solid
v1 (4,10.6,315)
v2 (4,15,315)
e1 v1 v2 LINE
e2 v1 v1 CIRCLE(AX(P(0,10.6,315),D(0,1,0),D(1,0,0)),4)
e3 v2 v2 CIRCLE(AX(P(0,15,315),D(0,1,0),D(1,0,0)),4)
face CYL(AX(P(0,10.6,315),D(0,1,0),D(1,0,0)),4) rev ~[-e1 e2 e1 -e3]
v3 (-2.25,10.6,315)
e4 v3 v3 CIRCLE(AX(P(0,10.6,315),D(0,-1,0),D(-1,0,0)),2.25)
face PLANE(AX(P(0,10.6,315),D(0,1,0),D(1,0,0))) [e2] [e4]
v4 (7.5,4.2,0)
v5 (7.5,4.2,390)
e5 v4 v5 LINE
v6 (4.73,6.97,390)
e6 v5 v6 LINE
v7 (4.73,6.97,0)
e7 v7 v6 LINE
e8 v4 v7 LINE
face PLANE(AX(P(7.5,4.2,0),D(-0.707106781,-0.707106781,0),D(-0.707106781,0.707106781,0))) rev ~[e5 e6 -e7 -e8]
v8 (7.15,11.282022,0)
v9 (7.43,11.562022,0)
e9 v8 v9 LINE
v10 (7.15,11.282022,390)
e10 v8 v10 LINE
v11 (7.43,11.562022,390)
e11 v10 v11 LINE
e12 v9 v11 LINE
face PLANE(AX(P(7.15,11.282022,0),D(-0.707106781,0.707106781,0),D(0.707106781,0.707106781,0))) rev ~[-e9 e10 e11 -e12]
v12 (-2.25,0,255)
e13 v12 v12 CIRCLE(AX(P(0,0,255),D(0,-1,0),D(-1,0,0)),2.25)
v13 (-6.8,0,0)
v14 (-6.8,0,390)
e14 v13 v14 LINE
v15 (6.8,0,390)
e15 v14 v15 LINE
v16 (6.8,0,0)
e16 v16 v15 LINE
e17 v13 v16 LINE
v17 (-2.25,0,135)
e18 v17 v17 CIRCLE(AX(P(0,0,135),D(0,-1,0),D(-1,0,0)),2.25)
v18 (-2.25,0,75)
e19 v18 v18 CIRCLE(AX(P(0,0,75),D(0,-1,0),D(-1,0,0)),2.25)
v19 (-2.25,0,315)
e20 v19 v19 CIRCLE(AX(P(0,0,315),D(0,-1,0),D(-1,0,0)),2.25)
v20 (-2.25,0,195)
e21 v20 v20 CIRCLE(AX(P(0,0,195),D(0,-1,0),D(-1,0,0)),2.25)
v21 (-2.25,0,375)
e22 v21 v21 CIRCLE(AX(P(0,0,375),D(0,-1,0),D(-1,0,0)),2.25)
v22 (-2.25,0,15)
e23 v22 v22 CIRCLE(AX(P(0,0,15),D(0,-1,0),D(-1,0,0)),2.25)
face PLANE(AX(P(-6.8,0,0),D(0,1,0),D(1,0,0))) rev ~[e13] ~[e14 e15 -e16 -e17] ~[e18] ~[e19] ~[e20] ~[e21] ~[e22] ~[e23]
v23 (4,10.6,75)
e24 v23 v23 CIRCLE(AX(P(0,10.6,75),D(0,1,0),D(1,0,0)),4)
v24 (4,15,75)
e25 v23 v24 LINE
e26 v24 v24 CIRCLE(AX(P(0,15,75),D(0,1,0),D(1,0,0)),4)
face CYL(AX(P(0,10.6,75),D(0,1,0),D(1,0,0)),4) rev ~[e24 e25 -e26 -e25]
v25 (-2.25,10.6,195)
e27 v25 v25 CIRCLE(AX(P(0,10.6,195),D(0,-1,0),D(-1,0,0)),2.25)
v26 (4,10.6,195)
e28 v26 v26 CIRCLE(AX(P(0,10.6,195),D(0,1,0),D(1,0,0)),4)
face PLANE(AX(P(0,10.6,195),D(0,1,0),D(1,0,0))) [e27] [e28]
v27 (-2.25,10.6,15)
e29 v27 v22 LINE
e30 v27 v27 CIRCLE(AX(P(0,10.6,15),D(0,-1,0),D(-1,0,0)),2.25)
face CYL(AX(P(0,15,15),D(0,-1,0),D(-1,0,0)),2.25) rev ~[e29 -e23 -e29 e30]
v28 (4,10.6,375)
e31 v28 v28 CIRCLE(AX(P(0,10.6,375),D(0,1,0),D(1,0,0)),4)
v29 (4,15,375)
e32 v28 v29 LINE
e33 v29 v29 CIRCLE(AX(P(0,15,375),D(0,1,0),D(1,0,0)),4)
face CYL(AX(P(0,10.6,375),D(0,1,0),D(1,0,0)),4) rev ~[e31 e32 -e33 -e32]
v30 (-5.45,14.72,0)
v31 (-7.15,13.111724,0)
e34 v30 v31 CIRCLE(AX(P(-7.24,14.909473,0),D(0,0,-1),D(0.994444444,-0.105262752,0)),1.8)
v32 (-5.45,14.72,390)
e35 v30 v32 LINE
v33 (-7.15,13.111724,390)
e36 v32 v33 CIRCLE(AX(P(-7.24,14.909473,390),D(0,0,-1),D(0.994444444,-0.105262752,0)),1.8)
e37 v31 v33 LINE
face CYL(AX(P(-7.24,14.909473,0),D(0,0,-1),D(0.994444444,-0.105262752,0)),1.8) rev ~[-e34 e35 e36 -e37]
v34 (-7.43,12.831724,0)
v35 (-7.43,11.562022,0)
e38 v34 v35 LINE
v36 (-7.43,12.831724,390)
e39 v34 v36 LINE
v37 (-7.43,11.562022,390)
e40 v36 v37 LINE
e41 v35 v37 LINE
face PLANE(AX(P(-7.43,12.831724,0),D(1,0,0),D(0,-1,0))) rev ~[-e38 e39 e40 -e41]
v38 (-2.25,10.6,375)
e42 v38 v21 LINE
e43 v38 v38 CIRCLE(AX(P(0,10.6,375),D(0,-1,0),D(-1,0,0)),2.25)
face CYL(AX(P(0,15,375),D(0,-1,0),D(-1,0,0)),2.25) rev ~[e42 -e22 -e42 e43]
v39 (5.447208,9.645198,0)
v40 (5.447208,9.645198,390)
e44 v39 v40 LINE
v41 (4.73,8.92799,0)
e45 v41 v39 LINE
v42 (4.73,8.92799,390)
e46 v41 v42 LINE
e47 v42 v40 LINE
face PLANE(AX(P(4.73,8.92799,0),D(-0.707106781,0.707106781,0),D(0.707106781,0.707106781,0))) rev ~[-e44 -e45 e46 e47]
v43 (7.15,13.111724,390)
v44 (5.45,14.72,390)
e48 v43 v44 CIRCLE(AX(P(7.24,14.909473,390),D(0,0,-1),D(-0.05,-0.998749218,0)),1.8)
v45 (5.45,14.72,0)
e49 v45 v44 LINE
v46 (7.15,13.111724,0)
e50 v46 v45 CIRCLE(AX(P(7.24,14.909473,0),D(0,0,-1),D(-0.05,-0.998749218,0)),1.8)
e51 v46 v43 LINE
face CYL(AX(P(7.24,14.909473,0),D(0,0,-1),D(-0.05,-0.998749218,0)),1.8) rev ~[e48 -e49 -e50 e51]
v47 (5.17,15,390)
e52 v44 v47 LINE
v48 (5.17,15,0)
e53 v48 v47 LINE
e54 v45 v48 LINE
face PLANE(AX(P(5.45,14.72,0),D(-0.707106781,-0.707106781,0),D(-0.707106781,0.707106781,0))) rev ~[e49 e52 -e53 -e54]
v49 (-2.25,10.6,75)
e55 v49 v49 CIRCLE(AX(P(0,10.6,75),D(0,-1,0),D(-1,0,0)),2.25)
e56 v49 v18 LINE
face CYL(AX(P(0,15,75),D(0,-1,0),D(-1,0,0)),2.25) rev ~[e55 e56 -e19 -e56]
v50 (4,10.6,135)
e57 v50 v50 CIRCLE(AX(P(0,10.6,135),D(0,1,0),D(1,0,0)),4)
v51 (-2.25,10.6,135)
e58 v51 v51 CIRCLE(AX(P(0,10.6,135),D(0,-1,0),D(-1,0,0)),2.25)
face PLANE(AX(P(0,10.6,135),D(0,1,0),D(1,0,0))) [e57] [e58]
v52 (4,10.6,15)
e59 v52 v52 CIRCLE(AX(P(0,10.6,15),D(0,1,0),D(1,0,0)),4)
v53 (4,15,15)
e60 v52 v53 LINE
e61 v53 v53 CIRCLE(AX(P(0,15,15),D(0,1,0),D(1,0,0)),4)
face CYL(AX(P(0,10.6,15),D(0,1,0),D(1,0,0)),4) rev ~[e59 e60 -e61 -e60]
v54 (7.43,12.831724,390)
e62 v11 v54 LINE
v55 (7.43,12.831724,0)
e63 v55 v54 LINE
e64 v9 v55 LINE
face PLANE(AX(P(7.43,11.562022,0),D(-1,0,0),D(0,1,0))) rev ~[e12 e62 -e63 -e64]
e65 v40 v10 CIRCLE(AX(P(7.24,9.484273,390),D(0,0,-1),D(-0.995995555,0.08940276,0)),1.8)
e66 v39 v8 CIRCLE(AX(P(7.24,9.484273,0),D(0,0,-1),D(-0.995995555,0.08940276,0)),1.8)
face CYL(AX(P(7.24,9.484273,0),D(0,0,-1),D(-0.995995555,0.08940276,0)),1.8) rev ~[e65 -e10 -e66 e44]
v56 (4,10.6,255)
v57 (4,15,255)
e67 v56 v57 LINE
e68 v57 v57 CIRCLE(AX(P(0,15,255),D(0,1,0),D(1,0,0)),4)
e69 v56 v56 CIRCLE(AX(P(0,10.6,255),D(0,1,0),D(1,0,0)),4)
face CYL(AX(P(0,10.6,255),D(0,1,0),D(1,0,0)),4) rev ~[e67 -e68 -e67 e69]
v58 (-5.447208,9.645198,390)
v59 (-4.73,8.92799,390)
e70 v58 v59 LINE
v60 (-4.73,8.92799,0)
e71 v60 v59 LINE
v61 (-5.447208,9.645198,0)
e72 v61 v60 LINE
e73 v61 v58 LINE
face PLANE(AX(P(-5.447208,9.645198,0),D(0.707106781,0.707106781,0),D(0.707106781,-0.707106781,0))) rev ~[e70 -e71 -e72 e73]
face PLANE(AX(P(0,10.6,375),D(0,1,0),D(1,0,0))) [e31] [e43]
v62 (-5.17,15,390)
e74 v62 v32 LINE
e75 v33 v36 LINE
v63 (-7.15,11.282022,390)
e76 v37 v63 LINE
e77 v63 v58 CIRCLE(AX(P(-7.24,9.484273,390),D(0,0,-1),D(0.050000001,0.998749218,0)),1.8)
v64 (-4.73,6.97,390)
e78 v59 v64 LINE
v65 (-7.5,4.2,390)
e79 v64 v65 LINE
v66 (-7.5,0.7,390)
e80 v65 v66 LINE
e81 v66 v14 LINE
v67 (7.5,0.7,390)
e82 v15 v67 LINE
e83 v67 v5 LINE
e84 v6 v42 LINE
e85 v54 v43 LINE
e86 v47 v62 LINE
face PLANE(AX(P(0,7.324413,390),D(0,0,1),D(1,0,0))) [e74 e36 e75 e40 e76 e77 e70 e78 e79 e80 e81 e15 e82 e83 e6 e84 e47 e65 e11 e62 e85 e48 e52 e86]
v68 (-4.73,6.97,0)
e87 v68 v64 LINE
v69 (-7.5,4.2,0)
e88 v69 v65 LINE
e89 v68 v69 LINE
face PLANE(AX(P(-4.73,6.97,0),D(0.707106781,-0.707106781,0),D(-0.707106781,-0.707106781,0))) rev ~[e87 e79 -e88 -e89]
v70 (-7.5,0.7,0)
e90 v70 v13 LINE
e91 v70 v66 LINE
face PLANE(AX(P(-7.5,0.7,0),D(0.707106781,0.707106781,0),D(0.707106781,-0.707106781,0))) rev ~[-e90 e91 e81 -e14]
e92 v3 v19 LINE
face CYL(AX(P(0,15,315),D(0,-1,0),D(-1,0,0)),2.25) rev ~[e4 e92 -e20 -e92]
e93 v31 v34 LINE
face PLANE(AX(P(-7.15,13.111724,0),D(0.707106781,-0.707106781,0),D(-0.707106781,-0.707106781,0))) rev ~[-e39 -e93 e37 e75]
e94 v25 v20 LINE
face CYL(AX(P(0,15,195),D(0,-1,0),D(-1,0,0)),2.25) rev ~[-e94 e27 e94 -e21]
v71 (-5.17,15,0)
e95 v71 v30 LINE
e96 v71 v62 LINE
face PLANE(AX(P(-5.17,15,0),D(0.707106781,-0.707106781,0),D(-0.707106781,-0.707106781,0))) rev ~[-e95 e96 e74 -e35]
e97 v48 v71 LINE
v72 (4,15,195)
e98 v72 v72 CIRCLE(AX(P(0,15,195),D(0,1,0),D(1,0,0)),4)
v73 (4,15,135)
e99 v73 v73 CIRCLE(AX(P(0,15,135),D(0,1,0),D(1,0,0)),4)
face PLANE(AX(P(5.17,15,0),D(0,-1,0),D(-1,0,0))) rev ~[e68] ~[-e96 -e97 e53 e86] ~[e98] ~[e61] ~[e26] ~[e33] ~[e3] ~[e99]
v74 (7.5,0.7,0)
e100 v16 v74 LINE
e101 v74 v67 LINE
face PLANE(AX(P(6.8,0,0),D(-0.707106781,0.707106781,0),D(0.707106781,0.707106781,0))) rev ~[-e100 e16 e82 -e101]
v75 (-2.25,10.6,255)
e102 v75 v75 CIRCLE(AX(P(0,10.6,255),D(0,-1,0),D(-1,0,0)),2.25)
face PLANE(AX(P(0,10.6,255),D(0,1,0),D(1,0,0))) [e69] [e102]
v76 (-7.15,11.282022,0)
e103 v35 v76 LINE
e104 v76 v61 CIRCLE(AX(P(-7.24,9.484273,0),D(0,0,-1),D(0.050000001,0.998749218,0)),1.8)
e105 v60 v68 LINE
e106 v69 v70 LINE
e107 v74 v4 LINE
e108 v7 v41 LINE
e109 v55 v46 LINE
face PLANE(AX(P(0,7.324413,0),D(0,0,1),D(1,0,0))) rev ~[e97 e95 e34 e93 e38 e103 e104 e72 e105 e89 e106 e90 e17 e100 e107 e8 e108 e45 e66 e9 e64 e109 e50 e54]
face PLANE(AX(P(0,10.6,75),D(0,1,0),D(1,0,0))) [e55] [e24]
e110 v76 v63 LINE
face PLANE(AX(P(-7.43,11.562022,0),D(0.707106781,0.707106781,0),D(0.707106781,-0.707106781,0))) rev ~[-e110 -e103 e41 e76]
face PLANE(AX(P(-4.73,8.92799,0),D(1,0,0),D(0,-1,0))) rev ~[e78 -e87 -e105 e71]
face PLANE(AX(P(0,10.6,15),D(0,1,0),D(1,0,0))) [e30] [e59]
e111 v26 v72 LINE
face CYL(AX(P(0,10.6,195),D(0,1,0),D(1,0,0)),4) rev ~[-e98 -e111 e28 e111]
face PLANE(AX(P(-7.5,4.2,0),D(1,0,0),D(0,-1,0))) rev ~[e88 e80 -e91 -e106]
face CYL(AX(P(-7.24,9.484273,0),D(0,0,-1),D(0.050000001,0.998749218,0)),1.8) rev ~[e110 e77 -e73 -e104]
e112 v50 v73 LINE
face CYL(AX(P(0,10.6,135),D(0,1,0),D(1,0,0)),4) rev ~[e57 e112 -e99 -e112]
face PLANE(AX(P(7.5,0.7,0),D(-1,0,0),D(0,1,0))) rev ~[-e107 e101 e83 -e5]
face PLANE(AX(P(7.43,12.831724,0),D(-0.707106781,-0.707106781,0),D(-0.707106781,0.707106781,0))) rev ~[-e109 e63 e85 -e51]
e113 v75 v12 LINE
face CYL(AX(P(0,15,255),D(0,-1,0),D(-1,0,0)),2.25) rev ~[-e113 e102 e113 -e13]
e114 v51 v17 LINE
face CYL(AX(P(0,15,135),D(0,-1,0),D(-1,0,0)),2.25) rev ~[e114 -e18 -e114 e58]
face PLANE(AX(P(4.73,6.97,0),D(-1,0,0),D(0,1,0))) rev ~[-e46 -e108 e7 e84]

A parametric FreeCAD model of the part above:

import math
import FreeCAD as App
import Part
import Sketcher

V = App.Vector

doc = App.newDocument("Part")
body = doc.addObject("PartDesign::Body", "Body")

# Sketch on XY plane
sketch1 = body.newObject("Sketcher::SketchObject", "Sketch")
sketch1.AttachmentSupport = (doc.getObject("XY_Plane"), [""])
sketch1.MapMode = "FlatFace"
sketch1.addGeometry([
    Part.LineSegment(V(-5.17, 15, 0), V(-5.45, 14.72, 0)),  # 0
    Part.ArcOfCircle(Part.Circle(V(-7.24, 14.909473, 0), V(0, 0, 1), 1.8), math.radians(-87.134016), math.radians(-6.042305)),  # 1
    Part.LineSegment(V(-7.15, 13.111724, 0), V(-7.43, 12.831724, 0)),  # 2
    Part.LineSegment(V(-7.43, 12.831724, 0), V(-7.43, 11.562022, 0)),  # 3
    Part.LineSegment(V(-7.43, 11.562022, 0), V(-7.15, 11.282022, 0)),  # 4
    Part.ArcOfCircle(Part.Circle(V(-7.24, 9.484273, 0), V(0, 0, 1), 1.8), math.radians(5.129249), math.radians(87.134016)),  # 5
    Part.LineSegment(V(-5.447208, 9.645198, 0), V(-4.73, 8.92799, 0)),  # 6
    Part.LineSegment(V(-4.73, 8.92799, 0), V(-4.73, 6.97, 0)),  # 7
    Part.LineSegment(V(-4.73, 6.97, 0), V(-7.5, 4.2, 0)),  # 8
    Part.LineSegment(V(-7.5, 4.2, 0), V(-7.5, 0.7, 0)),  # 9
    Part.LineSegment(V(-7.5, 0.7, 0), V(-6.8, 0, 0)),  # 10
    Part.LineSegment(V(-6.8, 0, 0), V(6.8, 0, 0)),  # 11
    Part.LineSegment(V(6.8, 0, 0), V(7.5, 0.7, 0)),  # 12
    Part.LineSegment(V(7.5, 0.7, 0), V(7.5, 4.2, 0)),  # 13
    Part.LineSegment(V(7.5, 4.2, 0), V(4.73, 6.97, 0)),  # 14
    Part.LineSegment(V(4.73, 6.97, 0), V(4.73, 8.92799, 0)),  # 15
    Part.LineSegment(V(4.73, 8.92799, 0), V(5.447208, 9.645198, 0)),  # 16
    Part.ArcOfCircle(Part.Circle(V(7.24, 9.484273, 0), V(0, 0, 1), 1.8), math.radians(92.865984), math.radians(174.870751)),  # 17
    Part.LineSegment(V(7.15, 11.282022, 0), V(7.43, 11.562022, 0)),  # 18
    Part.LineSegment(V(7.43, 11.562022, 0), V(7.43, 12.831724, 0)),  # 19
    Part.LineSegment(V(7.43, 12.831724, 0), V(7.15, 13.111724, 0)),  # 20
    Part.ArcOfCircle(Part.Circle(V(7.24, 14.909473, 0), V(0, 0, 1), 1.8), math.radians(-173.957695), math.radians(-92.865984)),  # 21
    Part.LineSegment(V(5.45, 14.72, 0), V(5.17, 15, 0)),  # 22
    Part.LineSegment(V(5.17, 15, 0), V(-5.17, 15, 0)),  # 23
], False)
sketch1.addConstraint([
    Sketcher.Constraint("Coincident", 0, 2, 1, 2),
    Sketcher.Constraint("Coincident", 1, 1, 2, 1),
    Sketcher.Constraint("Coincident", 2, 2, 3, 1),
    Sketcher.Constraint("Coincident", 3, 2, 4, 1),
    Sketcher.Constraint("Coincident", 4, 2, 5, 2),
    Sketcher.Constraint("Coincident", 5, 1, 6, 1),
    Sketcher.Constraint("Coincident", 6, 2, 7, 1),
    Sketcher.Constraint("Coincident", 7, 2, 8, 1),
    Sketcher.Constraint("Coincident", 8, 2, 9, 1),
    Sketcher.Constraint("Coincident", 9, 2, 10, 1),
    Sketcher.Constraint("Coincident", 10, 2, 11, 1),
    Sketcher.Constraint("Coincident", 11, 2, 12, 1),
    Sketcher.Constraint("Coincident", 12, 2, 13, 1),
    Sketcher.Constraint("Coincident", 13, 2, 14, 1),
    Sketcher.Constraint("Coincident", 14, 2, 15, 1),
    Sketcher.Constraint("Coincident", 15, 2, 16, 1),
    Sketcher.Constraint("Coincident", 16, 2, 17, 2),
    Sketcher.Constraint("Coincident", 17, 1, 18, 1),
    Sketcher.Constraint("Coincident", 18, 2, 19, 1),
    Sketcher.Constraint("Coincident", 19, 2, 20, 1),
    Sketcher.Constraint("Coincident", 20, 2, 21, 2),
    Sketcher.Constraint("Coincident", 21, 1, 22, 1),
    Sketcher.Constraint("Coincident", 22, 2, 23, 1),
    Sketcher.Constraint("Coincident", 23, 2, 0, 1),
    Sketcher.Constraint("Vertical", 3),
    Sketcher.Constraint("Vertical", 7),
    Sketcher.Constraint("Vertical", 9),
    Sketcher.Constraint("Horizontal", 11),
    Sketcher.Constraint("Vertical", 13),
    Sketcher.Constraint("Vertical", 15),
    Sketcher.Constraint("Vertical", 19),
    Sketcher.Constraint("Horizontal", 23),
    Sketcher.Constraint("Equal", 1, 5),
    Sketcher.Constraint("Equal", 5, 17),
    Sketcher.Constraint("Equal", 17, 21),
    Sketcher.Constraint("Symmetric", 10, 2, 11, 2, -1, 1),
    Sketcher.Constraint("Symmetric", 5, 3, 17, 3, -2),
    Sketcher.Constraint("Symmetric", 1, 3, 21, 3, -2),
    Sketcher.Constraint("Symmetric", 9, 2, 12, 2, -2),
    Sketcher.Constraint("Symmetric", 7, 2, 14, 2, -2),
    Sketcher.Constraint("Symmetric", 3, 2, 18, 2, -2),
    Sketcher.Constraint("Parallel", 0, 2),
    Sketcher.Constraint("Perpendicular", 2, 4),
    Sketcher.Constraint("Parallel", 4, 6),
    Sketcher.Constraint("Perpendicular", 6, 8),
    Sketcher.Constraint("Perpendicular", 8, 10),
    Sketcher.Constraint("Perpendicular", 10, 12),
    Sketcher.Constraint("Perpendicular", 12, 14),
    Sketcher.Constraint("Perpendicular", 14, 16),
    Sketcher.Constraint("Parallel", 16, 18),
    Sketcher.Constraint("Perpendicular", 18, 20),
    Sketcher.Constraint("Parallel", 20, 22),
    Sketcher.Constraint("Horizontal", 6, 2, 15, 2),
    Sketcher.Constraint("Horizontal", 2, 2, 19, 2),
    Sketcher.Constraint("Horizontal", 0, 2, 21, 1),
    Sketcher.Constraint("Vertical", 1, 3, 5, 3),
    Sketcher.Constraint("Vertical", 1, 1, 4, 2),
    Sketcher.Constraint("Equal", 0, 2),
    Sketcher.Constraint("Radius", 1, 1.8),
    Sketcher.Constraint("DistanceX", 11, 1, 11, 2, 13.6),
    Sketcher.Constraint("DistanceY", 9, 2, 9, 1, 3.5),
    Sketcher.Constraint("DistanceY", -1, 1, 22, 2, 15.0),
    Sketcher.Constraint("DistanceX", 23, 2, 23, 1, 10.34),
    Sketcher.Constraint("DistanceX", 8, 2, -1, 1, 7.5),
    Sketcher.Constraint("DistanceX", 1, 1, 0, 2, 1.7),
    Sketcher.Constraint("DistanceX", 3, 2, 6, 2, 2.7),
    Sketcher.Constraint("DistanceX", 1, 3, -1, 1, 7.24),
    Sketcher.Constraint("DistanceX", 0, 2, -1, 1, 5.45),
    Sketcher.Constraint("DistanceY", 7, 2, 7, 1, 1.95799),
    Sketcher.Constraint("DistanceY", 5, 3, 1, 3, 5.4252),
])
pad1 = body.newObject("PartDesign::Pad", "Pad")
pad1.Profile = sketch1
pad1.Length = 390

# Sketch on XZ plane
sketch2 = body.newObject("Sketcher::SketchObject", "Sketch001")
sketch2.AttachmentSupport = (doc.getObject("XZ_Plane"), [""])
sketch2.MapMode = "FlatFace"
sketch2.AttachmentOffset = App.Placement(V(0, 0, -15), App.Rotation())
sketch2.addGeometry([
    Part.Circle(V(0, 15, 0), V(0, 0, 1), 2.25),  # 0
    Part.Circle(V(0, 375, 0), V(0, 0, 1), 2.25),  # 1
    Part.Circle(V(0, 315, 0), V(0, 0, 1), 2.25),  # 2
    Part.Circle(V(0, 255, 0), V(0, 0, 1), 2.25),  # 3
    Part.Circle(V(0, 195, 0), V(0, 0, 1), 2.25),  # 4
    Part.Circle(V(0, 135, 0), V(0, 0, 1), 2.25),  # 5
    Part.Circle(V(0, 75, 0), V(0, 0, 1), 2.25),  # 6
], False)
sketch2.addConstraint([
    Sketcher.Constraint("Equal", 0, 1),
    Sketcher.Constraint("Equal", 1, 2),
    Sketcher.Constraint("Equal", 2, 3),
    Sketcher.Constraint("Equal", 3, 4),
    Sketcher.Constraint("Equal", 4, 5),
    Sketcher.Constraint("Equal", 5, 6),
    Sketcher.Constraint("PointOnObject", 0, 3, -2),
    Sketcher.Constraint("PointOnObject", 1, 3, -2),
    Sketcher.Constraint("PointOnObject", 2, 3, -2),
    Sketcher.Constraint("PointOnObject", 3, 3, -2),
    Sketcher.Constraint("PointOnObject", 4, 3, -2),
    Sketcher.Constraint("PointOnObject", 5, 3, -2),
    Sketcher.Constraint("PointOnObject", 6, 3, -2),
    Sketcher.Constraint("Diameter", 0, 4.5),
    Sketcher.Constraint("DistanceY", -1, 1, 0, 3, 15.0),
    Sketcher.Constraint("DistanceY", -1, 1, 1, 3, 375.0),
    Sketcher.Constraint("DistanceY", -1, 1, 2, 3, 315.0),
    Sketcher.Constraint("DistanceY", -1, 1, 3, 3, 255.0),
    Sketcher.Constraint("DistanceY", -1, 1, 4, 3, 195.0),
    Sketcher.Constraint("DistanceY", -1, 1, 5, 3, 135.0),
    Sketcher.Constraint("DistanceY", -1, 1, 6, 3, 75.0),
])
doc.recompute()
hole = body.newObject("PartDesign::Hole", "Hole")
hole.Profile = sketch2
hole.ThreadType = "None"
hole.Diameter = 4.5
hole.DepthType = "ThroughAll"
hole.HoleCutType = "Counterbore"
hole.HoleCutDiameter = 8
hole.HoleCutDepth = 4.4
hole.Reversed = True

doc.recompute()
